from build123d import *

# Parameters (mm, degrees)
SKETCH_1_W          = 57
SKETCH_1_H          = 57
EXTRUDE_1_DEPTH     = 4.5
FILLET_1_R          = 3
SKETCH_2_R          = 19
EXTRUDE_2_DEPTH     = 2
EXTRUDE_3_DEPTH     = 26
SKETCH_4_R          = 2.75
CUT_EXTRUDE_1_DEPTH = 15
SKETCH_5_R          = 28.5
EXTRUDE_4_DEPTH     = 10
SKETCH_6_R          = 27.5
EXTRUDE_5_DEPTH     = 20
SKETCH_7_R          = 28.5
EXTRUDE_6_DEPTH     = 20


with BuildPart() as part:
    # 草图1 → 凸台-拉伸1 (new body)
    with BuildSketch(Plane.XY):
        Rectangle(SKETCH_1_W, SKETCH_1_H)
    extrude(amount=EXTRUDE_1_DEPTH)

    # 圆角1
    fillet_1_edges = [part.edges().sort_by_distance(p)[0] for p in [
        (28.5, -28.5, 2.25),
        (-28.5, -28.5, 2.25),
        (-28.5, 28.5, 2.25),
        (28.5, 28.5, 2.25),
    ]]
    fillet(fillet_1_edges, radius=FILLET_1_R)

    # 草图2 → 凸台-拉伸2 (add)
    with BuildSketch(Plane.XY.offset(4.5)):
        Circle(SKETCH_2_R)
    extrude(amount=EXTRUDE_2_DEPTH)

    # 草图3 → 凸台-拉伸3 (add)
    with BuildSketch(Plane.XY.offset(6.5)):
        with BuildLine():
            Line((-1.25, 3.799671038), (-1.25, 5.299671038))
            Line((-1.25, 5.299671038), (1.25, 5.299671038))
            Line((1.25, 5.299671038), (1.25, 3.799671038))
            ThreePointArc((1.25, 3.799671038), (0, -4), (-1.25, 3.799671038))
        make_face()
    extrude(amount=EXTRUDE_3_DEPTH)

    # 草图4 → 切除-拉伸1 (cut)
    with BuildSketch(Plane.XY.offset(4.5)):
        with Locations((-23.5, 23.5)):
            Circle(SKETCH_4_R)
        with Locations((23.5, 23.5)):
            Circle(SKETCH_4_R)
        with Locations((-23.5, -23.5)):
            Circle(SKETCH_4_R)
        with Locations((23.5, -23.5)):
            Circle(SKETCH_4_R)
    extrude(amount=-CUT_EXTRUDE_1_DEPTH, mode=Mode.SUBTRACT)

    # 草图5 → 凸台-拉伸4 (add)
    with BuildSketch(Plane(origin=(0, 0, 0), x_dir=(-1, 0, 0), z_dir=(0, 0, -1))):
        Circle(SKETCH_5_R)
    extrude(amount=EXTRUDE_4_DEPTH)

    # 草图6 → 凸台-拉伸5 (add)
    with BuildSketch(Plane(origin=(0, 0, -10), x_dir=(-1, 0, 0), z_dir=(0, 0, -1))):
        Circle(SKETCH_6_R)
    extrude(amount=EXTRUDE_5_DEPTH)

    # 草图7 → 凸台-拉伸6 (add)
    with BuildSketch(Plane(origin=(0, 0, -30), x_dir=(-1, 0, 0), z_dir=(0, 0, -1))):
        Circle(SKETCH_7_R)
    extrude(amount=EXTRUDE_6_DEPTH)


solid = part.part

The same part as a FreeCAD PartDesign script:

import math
import FreeCAD as App
import Part
import Sketcher

V = App.Vector
Q = App.Units.Quantity


def edges_at(feature, points):
    """Names of the edges that pass closest to the given points."""
    edges = feature.Shape.Edges
    near = lambda p: min(range(len(edges)), key=lambda i: edges[i].distToShape(Part.Vertex(*p))[0])
    return sorted({f"Edge{near(p) + 1}" for p in points})

doc = App.newDocument("Part")
body = doc.addObject("PartDesign::Body", "Body")

# Sketch on XY plane
sketch1 = doc.addObject("Sketcher::SketchObject", "Sketch")
body.addObject(sketch1)
sketch1.AttachmentSupport = (doc.XY_Plane, [""])
sketch1.MapMode = "FlatFace"
sketch1.addGeometry(Part.LineSegment(V(-28, 28, 0), V(-28, -28, 0)), False)
sketch1.addGeometry(Part.LineSegment(V(-28, -28, 0), V(28, -28, 0)), False)
sketch1.addGeometry(Part.LineSegment(V(28, -28, 0), V(28, 28, 0)), False)
sketch1.addGeometry(Part.LineSegment(V(28, 28, 0), V(-28, 28, 0)), False)
sketch1.addConstraint(Sketcher.Constraint("Coincident", 0, 2, 1, 1))
sketch1.addConstraint(Sketcher.Constraint("Coincident", 1, 2, 2, 1))
sketch1.addConstraint(Sketcher.Constraint("Coincident", 2, 2, 3, 1))
sketch1.addConstraint(Sketcher.Constraint("Coincident", 3, 2, 0, 1))
sketch1.addConstraint(Sketcher.Constraint("Vertical", 0))
sketch1.addConstraint(Sketcher.Constraint("Horizontal", 1))
sketch1.addConstraint(Sketcher.Constraint("Vertical", 2))
sketch1.addConstraint(Sketcher.Constraint("Horizontal", 3))
sketch1.addConstraint(Sketcher.Constraint("Symmetric", 0, 2, 2, 2, -1, 1))
sketch1.addConstraint(Sketcher.Constraint("Equal", 3, 0))
sketch1.addConstraint(Sketcher.Constraint("DistanceX", 1, 1, 1, 2, Q("57 mm")))
pad1 = doc.addObject("PartDesign::Pad", "Pad")
body.addObject(pad1)
pad1.Profile = sketch1
pad1.Length = 4.5
doc.recompute()

fillet = doc.addObject("PartDesign::Fillet", "Fillet")
body.addObject(fillet)
fillet.Base = (pad1, edges_at(pad1, [
    (28.5, -28.5, 2.25),
    (-28.5, -28.5, 2.25),
    (-28.5, 28.5, 2.25),
    (28.5, 28.5, 2.25),
]))
fillet.Radius = 3

# Sketch on XY plane
sketch2 = doc.addObject("Sketcher::SketchObject", "Sketch001")
body.addObject(sketch2)
sketch2.AttachmentSupport = (doc.XY_Plane, [""])
sketch2.MapMode = "FlatFace"
sketch2.AttachmentOffset = App.Placement(V(0, 0, 4.5), App.Rotation())
sketch2.addGeometry(Part.Circle(V(0, 0, 0), V(0, 0, 1), 19), False)
sketch2.addConstraint(Sketcher.Constraint("Coincident", 0, 3, -1, 1))
sketch2.addConstraint(Sketcher.Constraint("Diameter", 0, Q("38 mm")))
pad2 = doc.addObject("PartDesign::Pad", "Pad001")
body.addObject(pad2)
pad2.Profile = sketch2
pad2.Length = 2

# Sketch on XY plane
sketch3 = doc.addObject("Sketcher::SketchObject", "Sketch002")
body.addObject(sketch3)
sketch3.AttachmentSupport = (doc.XY_Plane, [""])
sketch3.MapMode = "FlatFace"
sketch3.AttachmentOffset = App.Placement(V(0, 0, 6.5), App.Rotation())
sketch3.addGeometry(Part.LineSegment(V(-1.2, 5.3, 0), V(-1.2, 3.8, 0)), False)
sketch3.addGeometry(Part.ArcOfCircle(Part.Circle(V(0, 0, 0), V(0, 0, 1), 4), math.radians(108), math.radians(432)), False)
sketch3.addGeometry(Part.LineSegment(V(1.2, 3.8, 0), V(1.2, 5.3, 0)), False)
sketch3.addGeometry(Part.LineSegment(V(1.2, 5.3, 0), V(-1.2, 5.3, 0)), False)
sketch3.addConstraint(Sketcher.Constraint("Coincident", 0, 2, 1, 1))
sketch3.addConstraint(Sketcher.Constraint("Coincident", 1, 2, 2, 1))
sketch3.addConstraint(Sketcher.Constraint("Coincident", 2, 2, 3, 1))
sketch3.addConstraint(Sketcher.Constraint("Coincident", 3, 2, 0, 1))
sketch3.addConstraint(Sketcher.Constraint("Vertical", 0))
sketch3.addConstraint(Sketcher.Constraint("Vertical", 2))
sketch3.addConstraint(Sketcher.Constraint("Horizontal", 3))
sketch3.addConstraint(Sketcher.Constraint("Coincident", 1, 3, -1, 1))
sketch3.addConstraint(Sketcher.Constraint("Horizontal", 0, 2, 1, 2))
sketch3.addConstraint(Sketcher.Constraint("Radius", 1, Q("4 mm")))
sketch3.addConstraint(Sketcher.Constraint("DistanceX", 3, 2, 3, 1, Q("2.5 mm")))
sketch3.addConstraint(Sketcher.Constraint("DistanceY", 0, 2, 0, 1, Q("1.5 mm")))
pad3 = doc.addObject("PartDesign::Pad", "Pad002")
body.addObject(pad3)
pad3.Profile = sketch3
pad3.Length = 26

# Sketch on XY plane
sketch4 = doc.addObject("Sketcher::SketchObject", "Sketch003")
body.addObject(sketch4)
sketch4.AttachmentSupport = (doc.XY_Plane, [""])
sketch4.MapMode = "FlatFace"
sketch4.AttachmentOffset = App.Placement(V(0, 0, 4.5), App.Rotation())
sketch4.addGeometry(Part.Circle(V(-23.5, 23.5, 0), V(0, 0, 1), 2.8), False)
sketch4.addGeometry(Part.Circle(V(23.5, 23.5, 0), V(0, 0, 1), 2.8), False)
sketch4.addGeometry(Part.Circle(V(-23.5, -23.5, 0), V(0, 0, 1), 2.8), False)
sketch4.addGeometry(Part.Circle(V(23.5, -23.5, 0), V(0, 0, 1), 2.8), False)
sketch4.addConstraint(Sketcher.Constraint("Equal", 0, 1))
sketch4.addConstraint(Sketcher.Constraint("Equal", 1, 2))
sketch4.addConstraint(Sketcher.Constraint("Equal", 2, 3))
sketch4.addConstraint(Sketcher.Constraint("Symmetric", 1, 3, 2, 3, -1, 1))
sketch4.addConstraint(Sketcher.Constraint("Symmetric", 0, 3, 3, 3, -1, 1))
sketch4.addConstraint(Sketcher.Constraint("Symmetric", 0, 3, 1, 3, -2))
sketch4.addConstraint(Sketcher.Constraint("Diameter", 0, Q("5.5 mm")))
sketch4.addConstraint(Sketcher.Constraint("DistanceX", 0, 3, 1, 3, Q("47 mm")))
sketch4.addConstraint(Sketcher.Constraint("DistanceY", 2, 3, 0, 3, Q("47 mm")))
pocket1 = doc.addObject("PartDesign::Pocket", "Pocket")
body.addObject(pocket1)
pocket1.Profile = sketch4
pocket1.Length = 15

# Sketch on XY plane
sketch5 = doc.addObject("Sketcher::SketchObject", "Sketch004")
body.addObject(sketch5)
sketch5.AttachmentSupport = (doc.XY_Plane, [""])
sketch5.MapMode = "FlatFace"
sketch5.addGeometry(Part.Circle(V(0, 0, 0), V(0, 0, 1), 28), False)
sketch5.addConstraint(Sketcher.Constraint("Coincident", 0, 3, -1, 1))
sketch5.addConstraint(Sketcher.Constraint("Diameter", 0, Q("57 mm")))
pad4 = doc.addObject("PartDesign::Pad", "Pad003")
body.addObject(pad4)
pad4.Profile = sketch5
pad4.Length = 10
pad4.Reversed = True

# Sketch on XY plane
sketch6 = doc.addObject("Sketcher::SketchObject", "Sketch005")
body.addObject(sketch6)
sketch6.AttachmentSupport = (doc.XY_Plane, [""])
sketch6.MapMode = "FlatFace"
sketch6.AttachmentOffset = App.Placement(V(0, 0, -10), App.Rotation())
sketch6.addGeometry(Part.Circle(V(0, 0, 0), V(0, 0, 1), 28), False)
sketch6.addConstraint(Sketcher.Constraint("Coincident", 0, 3, -1, 1))
sketch6.addConstraint(Sketcher.Constraint("Diameter", 0, Q("55 mm")))
pad5 = doc.addObject("PartDesign::Pad", "Pad004")
body.addObject(pad5)
pad5.Profile = sketch6
pad5.Length = 20
pad5.Reversed = True

# Sketch on XY plane
sketch7 = doc.addObject("Sketcher::SketchObject", "Sketch006")
body.addObject(sketch7)
sketch7.AttachmentSupport = (doc.XY_Plane, [""])
sketch7.MapMode = "FlatFace"
sketch7.AttachmentOffset = App.Placement(V(0, 0, -30), App.Rotation())
sketch7.addGeometry(Part.Circle(V(0, 0, 0), V(0, 0, 1), 28), False)
sketch7.addConstraint(Sketcher.Constraint("Coincident", 0, 3, -1, 1))
sketch7.addConstraint(Sketcher.Constraint("Diameter", 0, Q("57 mm")))
pad6 = doc.addObject("PartDesign::Pad", "Pad005")
body.addObject(pad6)
pad6.Profile = sketch7
pad6.Length = 20
pad6.Reversed = True

doc.recompute()
